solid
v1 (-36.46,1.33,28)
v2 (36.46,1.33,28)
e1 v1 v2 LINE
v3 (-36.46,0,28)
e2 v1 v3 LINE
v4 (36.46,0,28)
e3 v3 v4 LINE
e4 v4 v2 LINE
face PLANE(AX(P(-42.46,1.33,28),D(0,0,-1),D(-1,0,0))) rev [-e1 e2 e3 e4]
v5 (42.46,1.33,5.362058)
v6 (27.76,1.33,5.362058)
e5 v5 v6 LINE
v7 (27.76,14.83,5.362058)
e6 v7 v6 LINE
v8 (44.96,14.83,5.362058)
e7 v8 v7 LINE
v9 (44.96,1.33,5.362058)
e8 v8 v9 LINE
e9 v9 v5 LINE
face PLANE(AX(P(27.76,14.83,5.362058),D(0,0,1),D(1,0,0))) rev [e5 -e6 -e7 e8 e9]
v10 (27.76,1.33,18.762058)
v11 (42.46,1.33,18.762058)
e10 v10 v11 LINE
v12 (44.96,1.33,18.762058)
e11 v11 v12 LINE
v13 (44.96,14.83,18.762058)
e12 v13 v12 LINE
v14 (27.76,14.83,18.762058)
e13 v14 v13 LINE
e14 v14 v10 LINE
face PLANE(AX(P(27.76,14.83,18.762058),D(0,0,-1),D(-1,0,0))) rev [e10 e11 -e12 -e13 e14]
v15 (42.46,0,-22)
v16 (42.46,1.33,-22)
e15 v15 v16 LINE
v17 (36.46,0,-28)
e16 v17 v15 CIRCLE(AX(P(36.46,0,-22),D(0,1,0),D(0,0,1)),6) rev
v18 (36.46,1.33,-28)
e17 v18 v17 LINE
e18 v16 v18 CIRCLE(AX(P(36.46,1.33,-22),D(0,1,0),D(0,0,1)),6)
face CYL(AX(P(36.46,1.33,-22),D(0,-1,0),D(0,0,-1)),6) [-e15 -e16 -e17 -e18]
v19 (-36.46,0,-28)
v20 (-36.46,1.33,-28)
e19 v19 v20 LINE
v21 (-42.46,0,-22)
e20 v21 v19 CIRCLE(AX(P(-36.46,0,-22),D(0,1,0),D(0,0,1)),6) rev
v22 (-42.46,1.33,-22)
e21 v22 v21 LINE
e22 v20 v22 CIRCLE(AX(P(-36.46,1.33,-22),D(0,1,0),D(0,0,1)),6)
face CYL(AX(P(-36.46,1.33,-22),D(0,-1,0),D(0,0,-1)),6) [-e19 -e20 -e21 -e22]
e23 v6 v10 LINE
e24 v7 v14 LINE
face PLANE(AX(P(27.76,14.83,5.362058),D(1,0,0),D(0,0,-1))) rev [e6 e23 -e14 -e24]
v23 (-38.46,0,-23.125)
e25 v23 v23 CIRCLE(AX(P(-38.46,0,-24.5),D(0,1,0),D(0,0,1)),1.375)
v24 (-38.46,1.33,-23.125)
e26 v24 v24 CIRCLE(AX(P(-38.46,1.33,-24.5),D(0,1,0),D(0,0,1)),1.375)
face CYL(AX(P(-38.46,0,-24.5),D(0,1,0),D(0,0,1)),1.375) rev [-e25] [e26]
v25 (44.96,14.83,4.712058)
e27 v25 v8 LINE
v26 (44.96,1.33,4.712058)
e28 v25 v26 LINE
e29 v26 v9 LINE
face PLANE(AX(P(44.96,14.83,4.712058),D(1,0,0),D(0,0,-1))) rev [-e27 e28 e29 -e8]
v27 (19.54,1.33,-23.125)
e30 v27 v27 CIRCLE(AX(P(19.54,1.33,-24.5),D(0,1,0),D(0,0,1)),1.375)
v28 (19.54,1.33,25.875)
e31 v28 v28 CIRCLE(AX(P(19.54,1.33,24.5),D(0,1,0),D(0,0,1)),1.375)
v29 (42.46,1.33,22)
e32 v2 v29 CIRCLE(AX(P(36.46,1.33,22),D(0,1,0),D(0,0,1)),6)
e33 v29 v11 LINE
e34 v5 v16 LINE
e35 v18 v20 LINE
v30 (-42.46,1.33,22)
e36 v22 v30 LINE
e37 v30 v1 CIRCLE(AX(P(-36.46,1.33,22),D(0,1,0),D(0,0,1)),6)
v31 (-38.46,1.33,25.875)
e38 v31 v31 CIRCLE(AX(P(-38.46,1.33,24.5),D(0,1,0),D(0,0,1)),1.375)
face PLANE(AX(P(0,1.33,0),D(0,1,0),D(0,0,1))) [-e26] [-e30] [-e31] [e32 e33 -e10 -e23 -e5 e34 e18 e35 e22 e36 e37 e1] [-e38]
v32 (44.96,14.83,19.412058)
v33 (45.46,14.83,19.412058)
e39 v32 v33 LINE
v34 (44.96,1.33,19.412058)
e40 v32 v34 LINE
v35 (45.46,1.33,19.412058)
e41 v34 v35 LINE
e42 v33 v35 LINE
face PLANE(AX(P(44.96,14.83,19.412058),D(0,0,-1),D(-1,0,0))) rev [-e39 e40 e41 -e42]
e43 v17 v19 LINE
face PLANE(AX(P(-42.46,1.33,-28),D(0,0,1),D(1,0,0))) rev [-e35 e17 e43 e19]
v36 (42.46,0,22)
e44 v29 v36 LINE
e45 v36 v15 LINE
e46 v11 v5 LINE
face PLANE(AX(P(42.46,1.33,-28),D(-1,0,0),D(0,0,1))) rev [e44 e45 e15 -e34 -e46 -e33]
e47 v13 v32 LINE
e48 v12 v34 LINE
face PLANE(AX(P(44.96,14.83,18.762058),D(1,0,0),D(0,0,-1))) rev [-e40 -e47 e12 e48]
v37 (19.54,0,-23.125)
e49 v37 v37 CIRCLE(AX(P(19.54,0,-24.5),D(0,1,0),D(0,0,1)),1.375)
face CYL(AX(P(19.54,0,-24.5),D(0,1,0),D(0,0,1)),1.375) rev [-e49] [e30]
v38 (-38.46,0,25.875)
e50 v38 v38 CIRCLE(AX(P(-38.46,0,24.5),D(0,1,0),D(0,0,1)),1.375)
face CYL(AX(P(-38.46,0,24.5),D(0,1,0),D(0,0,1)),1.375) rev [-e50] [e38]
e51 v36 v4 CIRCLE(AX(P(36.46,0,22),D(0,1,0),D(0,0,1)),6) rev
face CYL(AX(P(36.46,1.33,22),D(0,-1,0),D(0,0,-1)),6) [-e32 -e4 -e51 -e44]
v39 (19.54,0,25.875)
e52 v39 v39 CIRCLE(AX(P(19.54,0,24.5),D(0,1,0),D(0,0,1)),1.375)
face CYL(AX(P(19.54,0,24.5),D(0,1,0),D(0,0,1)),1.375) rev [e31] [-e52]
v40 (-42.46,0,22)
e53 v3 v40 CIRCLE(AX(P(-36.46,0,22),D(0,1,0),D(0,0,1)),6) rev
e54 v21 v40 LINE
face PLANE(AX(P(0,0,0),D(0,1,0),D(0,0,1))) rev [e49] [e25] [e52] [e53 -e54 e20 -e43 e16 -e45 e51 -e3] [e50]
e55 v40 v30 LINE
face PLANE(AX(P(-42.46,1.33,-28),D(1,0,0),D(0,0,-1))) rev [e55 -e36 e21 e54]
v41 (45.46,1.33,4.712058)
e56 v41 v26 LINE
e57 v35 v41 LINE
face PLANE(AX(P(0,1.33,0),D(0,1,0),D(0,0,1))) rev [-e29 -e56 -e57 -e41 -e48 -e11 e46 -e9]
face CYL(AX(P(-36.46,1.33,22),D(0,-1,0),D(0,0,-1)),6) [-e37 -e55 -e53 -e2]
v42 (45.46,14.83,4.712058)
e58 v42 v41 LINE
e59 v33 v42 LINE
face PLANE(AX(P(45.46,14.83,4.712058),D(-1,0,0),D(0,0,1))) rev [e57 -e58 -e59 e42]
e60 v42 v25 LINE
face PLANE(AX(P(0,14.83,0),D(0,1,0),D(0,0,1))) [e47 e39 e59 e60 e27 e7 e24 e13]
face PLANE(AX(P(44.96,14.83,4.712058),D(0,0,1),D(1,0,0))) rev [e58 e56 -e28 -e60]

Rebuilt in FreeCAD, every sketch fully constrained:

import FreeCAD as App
import Part
import Sketcher

V = App.Vector


def edges_at(feature, points):
    """Names of the edges that pass closest to the given points."""
    edges = feature.Shape.Edges
    near = lambda p: min(range(len(edges)), key=lambda i: edges[i].distToShape(Part.Vertex(*p))[0])
    return sorted({f"Edge{near(p) + 1}" for p in points})


def add_polygon(sketch, points):
    """Adds a closed chain of lines whose ends are joined by coincident constraints."""
    first, n = sketch.GeometryCount, len(points)
    for a, b in zip(points, points[1:] + points[:1]):
        sketch.addGeometry(Part.LineSegment(App.Vector(*a, 0), App.Vector(*b, 0)), False)
    for i in range(n):
        sketch.addConstraint(Sketcher.Constraint("Coincident", first + i, 2, first + (i + 1) % n, 1))

doc = App.newDocument("Part")
body = doc.addObject("PartDesign::Body", "Body")

# Sketch on XZ plane
sketch1 = body.newObject("Sketcher::SketchObject", "Sketch")
sketch1.AttachmentSupport = (doc.getObject("XZ_Plane"), [""])
sketch1.MapMode = "FlatFace"
add_polygon(sketch1, [(-42, -28), (-42, 28), (42, 28), (42, -28)])  # lines 0-3
sketch1.addConstraint([
    Sketcher.Constraint("Vertical", 0),
    Sketcher.Constraint("Horizontal", 1),
    Sketcher.Constraint("Vertical", 2),
    Sketcher.Constraint("Horizontal", 3),
    Sketcher.Constraint("Symmetric", 0, 2, 2, 2, -1, 1),
    Sketcher.Constraint("DistanceY", 0, 1, 0, 2, 56.0),
    Sketcher.Constraint("DistanceX", 1, 1, 1, 2, 84.92),
])
pad1 = body.newObject("PartDesign::Pad", "Pad")
pad1.Profile = sketch1
pad1.Length = 1.33
pad1.Reversed = True
doc.recompute()

fillet = body.newObject("PartDesign::Fillet", "Fillet")
fillet.Base = (pad1, edges_at(pad1, [
    (42.46, 0.665, 28),
    (-42.46, 0.665, 28),
    (-42.46, 0.665, -28),
    (42.46, 0.665, -28),
]))
fillet.Radius = 6

# Sketch on XZ plane
sketch2 = body.newObject("Sketcher::SketchObject", "Sketch001")
sketch2.AttachmentSupport = (doc.getObject("XZ_Plane"), [""])
sketch2.MapMode = "FlatFace"
sketch2.AttachmentOffset = App.Placement(V(0, 0, -1.33), App.Rotation())
sketch2.addGeometry([
    Part.Circle(V(-38.5, -24.5, 0), V(0, 0, 1), 1.4),
    Part.Circle(V(-38.5, 24.5, 0), V(0, 0, 1), 1.4),
    Part.Circle(V(19.5, 24.5, 0), V(0, 0, 1), 1.4),
    Part.Circle(V(19.5, -24.5, 0), V(0, 0, 1), 1.4),
], False)
sketch2.addConstraint([
    Sketcher.Constraint("Equal", 0, 1),
    Sketcher.Constraint("Equal", 1, 2),
    Sketcher.Constraint("Equal", 2, 3),
    Sketcher.Constraint("Symmetric", 0, 3, 1, 3, -1),
    Sketcher.Constraint("Symmetric", 2, 3, 3, 3, -1),
    Sketcher.Constraint("Horizontal", 1, 3, 2, 3),
    Sketcher.Constraint("Diameter", 0, 2.75),
    Sketcher.Constraint("DistanceY", 0, 3, 1, 3, 49.0),
    Sketcher.Constraint("DistanceX", 1, 3, 2, 3, 58.0),
    Sketcher.Constraint("DistanceX", 0, 3, -1, 1, 38.46),
])
pocket1 = body.newObject("PartDesign::Pocket", "Pocket")
pocket1.Profile = sketch2
pocket1.Length = 1.33
pocket1.Reversed = True

# Sketch on XZ plane
sketch3 = body.newObject("Sketcher::SketchObject", "Sketch002")
sketch3.AttachmentSupport = (doc.getObject("XZ_Plane"), [""])
sketch3.MapMode = "FlatFace"
sketch3.AttachmentOffset = App.Placement(V(0, 0, -1.33), App.Rotation())
add_polygon(sketch3, [(45.5, 19.4), (45.5, 4.7), (45, 4.7), (45, 5.4), (27.8, 5.4), (27.8, 18.8), (45, 18.8), (45, 19.4)])  # lines 0-7
sketch3.addConstraint([
    Sketcher.Constraint("Vertical", 0),
    Sketcher.Constraint("Horizontal", 1),
    Sketcher.Constraint("Vertical", 2),
    Sketcher.Constraint("Horizontal", 3),
    Sketcher.Constraint("Vertical", 4),
    Sketcher.Constraint("Horizontal", 5),
    Sketcher.Constraint("Vertical", 6),
    Sketcher.Constraint("Horizontal", 7),
    Sketcher.Constraint("Vertical", 2, 2, 5, 2),
    Sketcher.Constraint("Equal", 2, 6),
    Sketcher.Constraint("DistanceX", 1, 2, 1, 1, 0.5),
    Sketcher.Constraint("DistanceX", 3, 2, 3, 1, 17.2),
    Sketcher.Constraint("DistanceY", 0, 2, 0, 1, 14.7),
    Sketcher.Constraint("DistanceY", 4, 1, 4, 2, 13.4),
    Sketcher.Constraint("DistanceX", -1, 1, 0, 2, 45.46),
    Sketcher.Constraint("DistanceY", -1, 1, 0, 2, 4.712058),
])
pad2 = body.newObject("PartDesign::Pad", "Pad001")
pad2.Profile = sketch3
pad2.Length = 13.5
pad2.Reversed = True

doc.recompute()
